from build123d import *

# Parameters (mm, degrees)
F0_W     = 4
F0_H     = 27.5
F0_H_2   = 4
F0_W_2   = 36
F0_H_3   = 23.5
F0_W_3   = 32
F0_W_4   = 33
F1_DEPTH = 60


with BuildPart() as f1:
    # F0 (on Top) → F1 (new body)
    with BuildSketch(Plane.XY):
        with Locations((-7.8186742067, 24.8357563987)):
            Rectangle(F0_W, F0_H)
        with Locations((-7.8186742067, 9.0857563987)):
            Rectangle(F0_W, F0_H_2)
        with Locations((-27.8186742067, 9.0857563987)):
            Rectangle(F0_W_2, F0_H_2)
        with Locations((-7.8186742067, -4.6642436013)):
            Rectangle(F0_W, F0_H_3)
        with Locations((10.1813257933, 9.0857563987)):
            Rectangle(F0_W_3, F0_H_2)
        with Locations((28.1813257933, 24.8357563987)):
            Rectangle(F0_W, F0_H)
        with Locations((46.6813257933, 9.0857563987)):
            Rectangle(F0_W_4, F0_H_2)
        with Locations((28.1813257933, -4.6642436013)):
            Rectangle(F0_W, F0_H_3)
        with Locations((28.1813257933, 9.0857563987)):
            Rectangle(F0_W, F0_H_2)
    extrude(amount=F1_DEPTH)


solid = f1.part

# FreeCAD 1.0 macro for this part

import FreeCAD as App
import Part
import Sketcher
from FreeCAD import Vector

doc = App.newDocument("Part")
body = doc.addObject("PartDesign::Body", "Body")

sketch1 = doc.addObject("Sketcher::SketchObject", "Sketch")
body.addObject(sketch1)
sketch1.AttachmentSupport = (doc.XY_Plane, [""])
sketch1.MapMode = "FlatFace"
sketch1.addGeometry([
    Part.LineSegment(Vector(-5.8, 38.6, 0), Vector(-9.8, 38.6, 0)),
    Part.LineSegment(Vector(-9.8, 38.6, 0), Vector(-9.8, 11.1, 0)),
    Part.LineSegment(Vector(-9.8, 11.1, 0), Vector(-45.8, 11.1, 0)),
    Part.LineSegment(Vector(-45.8, 11.1, 0), Vector(-45.8, 7.1, 0)),
    Part.LineSegment(Vector(-45.8, 7.1, 0), Vector(-9.8, 7.1, 0)),
    Part.LineSegment(Vector(-9.8, 7.1, 0), Vector(-9.8, -16.4, 0)),
    Part.LineSegment(Vector(-9.8, -16.4, 0), Vector(-5.8, -16.4, 0)),
    Part.LineSegment(Vector(-5.8, -16.4, 0), Vector(-5.8, 7.1, 0)),
    Part.LineSegment(Vector(-5.8, 7.1, 0), Vector(26.2, 7.1, 0)),
    Part.LineSegment(Vector(26.2, 7.1, 0), Vector(26.2, -16.4, 0)),
    Part.LineSegment(Vector(26.2, -16.4, 0), Vector(30.2, -16.4, 0)),
    Part.LineSegment(Vector(30.2, -16.4, 0), Vector(30.2, 7.1, 0)),
    Part.LineSegment(Vector(30.2, 7.1, 0), Vector(63.2, 7.1, 0)),
    Part.LineSegment(Vector(63.2, 7.1, 0), Vector(63.2, 11.1, 0)),
    Part.LineSegment(Vector(63.2, 11.1, 0), Vector(30.2, 11.1, 0)),
    Part.LineSegment(Vector(30.2, 11.1, 0), Vector(30.2, 38.6, 0)),
    Part.LineSegment(Vector(30.2, 38.6, 0), Vector(26.2, 38.6, 0)),
    Part.LineSegment(Vector(26.2, 38.6, 0), Vector(26.2, 11.1, 0)),
    Part.LineSegment(Vector(26.2, 11.1, 0), Vector(-5.8, 11.1, 0)),
    Part.LineSegment(Vector(-5.8, 11.1, 0), Vector(-5.8, 38.6, 0)),
], False)
sketch1.addConstraint([
    Sketcher.Constraint("Coincident", 0, 2, 1, 1),
    Sketcher.Constraint("Coincident", 1, 2, 2, 1),
    Sketcher.Constraint("Coincident", 2, 2, 3, 1),
    Sketcher.Constraint("Coincident", 3, 2, 4, 1),
    Sketcher.Constraint("Coincident", 4, 2, 5, 1),
    Sketcher.Constraint("Coincident", 5, 2, 6, 1),
    Sketcher.Constraint("Coincident", 6, 2, 7, 1),
    Sketcher.Constraint("Coincident", 7, 2, 8, 1),
    Sketcher.Constraint("Coincident", 8, 2, 9, 1),
    Sketcher.Constraint("Coincident", 9, 2, 10, 1),
    Sketcher.Constraint("Coincident", 10, 2, 11, 1),
    Sketcher.Constraint("Coincident", 11, 2, 12, 1),
    Sketcher.Constraint("Coincident", 12, 2, 13, 1),
    Sketcher.Constraint("Coincident", 13, 2, 14, 1),
    Sketcher.Constraint("Coincident", 14, 2, 15, 1),
    Sketcher.Constraint("Coincident", 15, 2, 16, 1),
    Sketcher.Constraint("Coincident", 16, 2, 17, 1),
    Sketcher.Constraint("Coincident", 17, 2, 18, 1),
    Sketcher.Constraint("Coincident", 18, 2, 19, 1),
    Sketcher.Constraint("Coincident", 19, 2, 0, 1),
    Sketcher.Constraint("Horizontal", 0),
    Sketcher.Constraint("Vertical", 1),
    Sketcher.Constraint("Horizontal", 2),
    Sketcher.Constraint("Vertical", 3),
    Sketcher.Constraint("Horizontal", 4),
    Sketcher.Constraint("Vertical", 5),
    Sketcher.Constraint("Horizontal", 6),
    Sketcher.Constraint("Vertical", 7),
    Sketcher.Constraint("Horizontal", 8),
    Sketcher.Constraint("Vertical", 9),
    Sketcher.Constraint("Horizontal", 10),
    Sketcher.Constraint("Vertical", 11),
    Sketcher.Constraint("Horizontal", 12),
    Sketcher.Constraint("Vertical", 13),
    Sketcher.Constraint("Horizontal", 14),
    Sketcher.Constraint("Vertical", 15),
    Sketcher.Constraint("Horizontal", 16),
    Sketcher.Constraint("Vertical", 17),
    Sketcher.Constraint("Horizontal", 18),
    Sketcher.Constraint("Vertical", 19),
    Sketcher.Constraint("Horizontal", 4, 2, 7, 2),
    Sketcher.Constraint("Horizontal", 6, 2, 9, 2),
    Sketcher.Constraint("Horizontal", 8, 2, 11, 2),
    Sketcher.Constraint("Horizontal", 2, 2, 13, 2),
    Sketcher.Constraint("Horizontal", 0, 2, 15, 2),
    Sketcher.Constraint("Horizontal", 14, 2, 17, 2),
    Sketcher.Constraint("Vertical", 1, 2, 4, 2),
    Sketcher.Constraint("Vertical", 11, 2, 14, 2),
    Sketcher.Constraint("Vertical", 9, 2, 16, 2),
    Sketcher.Constraint("Vertical", 7, 2, 18, 2),
    Sketcher.Constraint("Equal", 6, 10),
    Sketcher.Constraint("Equal", 16, 3),
    Sketcher.Constraint("DistanceX", 0, 2, 0, 1, 4.0),
    Sketcher.Constraint("DistanceX", 2, 2, 2, 1, 36.0),
    Sketcher.Constraint("DistanceX", 8, 1, 8, 2, 32.0),
    Sketcher.Constraint("DistanceX", 12, 1, 12, 2, 33.0),
    Sketcher.Constraint("DistanceY", 1, 2, 1, 1, 27.5),
    Sketcher.Constraint("DistanceY", 5, 2, 5, 1, 23.5),
    Sketcher.Constraint("DistanceX", 0, 2, -1, 1, 9.818674),
    Sketcher.Constraint("DistanceY", -1, 1, 0, 2, 38.585756),
])
pad1 = doc.addObject("PartDesign::Pad", "Pad")
body.addObject(pad1)
pad1.Profile = sketch1
pad1.Length = 60

doc.recompute()
